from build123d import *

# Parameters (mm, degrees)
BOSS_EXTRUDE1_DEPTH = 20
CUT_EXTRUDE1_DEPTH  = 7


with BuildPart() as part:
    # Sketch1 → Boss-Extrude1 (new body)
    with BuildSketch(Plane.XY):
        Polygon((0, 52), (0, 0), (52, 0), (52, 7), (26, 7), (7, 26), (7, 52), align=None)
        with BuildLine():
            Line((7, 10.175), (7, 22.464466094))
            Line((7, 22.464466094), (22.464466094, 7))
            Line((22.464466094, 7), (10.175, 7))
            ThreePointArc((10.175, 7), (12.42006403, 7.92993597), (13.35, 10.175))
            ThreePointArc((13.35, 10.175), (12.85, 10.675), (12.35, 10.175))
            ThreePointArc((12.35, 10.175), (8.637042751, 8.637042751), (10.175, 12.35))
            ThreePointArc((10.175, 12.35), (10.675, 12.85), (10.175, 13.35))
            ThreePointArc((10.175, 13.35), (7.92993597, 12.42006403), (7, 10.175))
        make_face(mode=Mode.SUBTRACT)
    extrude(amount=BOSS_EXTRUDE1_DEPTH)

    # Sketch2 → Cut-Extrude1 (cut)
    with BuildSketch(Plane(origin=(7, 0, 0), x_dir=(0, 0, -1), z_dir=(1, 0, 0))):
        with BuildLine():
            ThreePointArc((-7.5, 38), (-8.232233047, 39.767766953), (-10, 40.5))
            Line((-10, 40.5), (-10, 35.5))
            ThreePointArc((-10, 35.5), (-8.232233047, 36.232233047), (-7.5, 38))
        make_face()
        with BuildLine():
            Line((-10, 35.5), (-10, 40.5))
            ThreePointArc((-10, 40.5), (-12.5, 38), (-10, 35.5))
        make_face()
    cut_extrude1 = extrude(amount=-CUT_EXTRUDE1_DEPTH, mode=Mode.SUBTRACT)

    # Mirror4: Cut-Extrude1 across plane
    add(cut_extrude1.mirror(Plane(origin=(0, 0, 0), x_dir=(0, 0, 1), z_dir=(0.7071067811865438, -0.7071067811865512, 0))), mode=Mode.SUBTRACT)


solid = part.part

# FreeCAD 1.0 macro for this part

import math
import FreeCAD as App
import Part
import Sketcher
from FreeCAD import Vector


def add_polygon(sketch, points):
    """Adds a closed chain of lines whose ends are joined by coincident constraints."""
    first, n = sketch.GeometryCount, len(points)
    for a, b in zip(points, points[1:] + points[:1]):
        sketch.addGeometry(Part.LineSegment(App.Vector(*a, 0), App.Vector(*b, 0)), False)
    for i in range(n):
        sketch.addConstraint(Sketcher.Constraint("Coincident", first + i, 2, first + (i + 1) % n, 1))

doc = App.newDocument("Part")
body = doc.addObject("PartDesign::Body", "Body")

# Sketch on XY plane
sketch1 = body.newObject("Sketcher::SketchObject", "Sketch")
sketch1.AttachmentSupport = (doc.getObject("XY_Plane"), [""])
sketch1.MapMode = "FlatFace"
add_polygon(sketch1, [(0, 52), (0, 0), (52, 0), (52, 7), (26, 7), (7, 26), (7, 52)])  # lines 0-6
sketch1.addGeometry(Part.ArcOfCircle(Part.Circle(Vector(10.175, 10.175, 0), Vector(0, 0, 1), 3.175), math.radians(90), math.radians(180)), False)  # 7
sketch1.addGeometry(Part.LineSegment(Vector(7, 10.175, 0), Vector(7, 22.464466, 0)), False)  # 8
sketch1.addGeometry(Part.LineSegment(Vector(7, 22.464466, 0), Vector(22.464466, 7, 0)), False)  # 9
sketch1.addGeometry(Part.LineSegment(Vector(22.464466, 7, 0), Vector(10.175, 7, 0)), False)  # 10
sketch1.addGeometry(Part.ArcOfCircle(Part.Circle(Vector(10.175, 10.175, 0), Vector(0, 0, 1), 3.175), math.radians(-90), math.radians(0)), False)  # 11
sketch1.addGeometry(Part.ArcOfCircle(Part.Circle(Vector(12.85, 10.175, 0), Vector(0, 0, 1), 0.5), math.radians(0), math.radians(180)), False)  # 12
sketch1.addGeometry(Part.ArcOfCircle(Part.Circle(Vector(10.175, 10.175, 0), Vector(0, 0, 1), 2.175), math.radians(90), math.radians(360)), False)  # 13
sketch1.addGeometry(Part.ArcOfCircle(Part.Circle(Vector(10.175, 12.85, 0), Vector(0, 0, 1), 0.5), math.radians(-90), math.radians(90)), False)  # 14
sketch1.addConstraint(Sketcher.Constraint("Tangent", 7, 2, 8, 1))
sketch1.addConstraint(Sketcher.Constraint("Coincident", 8, 2, 9, 1))
sketch1.addConstraint(Sketcher.Constraint("Coincident", 9, 2, 10, 1))
sketch1.addConstraint(Sketcher.Constraint("Tangent", 10, 2, 11, 1))
sketch1.addConstraint(Sketcher.Constraint("Tangent", 11, 2, 12, 1))
sketch1.addConstraint(Sketcher.Constraint("Tangent", 12, 2, 13, 2))
sketch1.addConstraint(Sketcher.Constraint("Tangent", 13, 1, 14, 1))
sketch1.addConstraint(Sketcher.Constraint("Tangent", 14, 2, 7, 1))
sketch1.addConstraint(Sketcher.Constraint("Vertical", 0))
sketch1.addConstraint(Sketcher.Constraint("Horizontal", 1))
sketch1.addConstraint(Sketcher.Constraint("Vertical", 2))
sketch1.addConstraint(Sketcher.Constraint("Horizontal", 3))
sketch1.addConstraint(Sketcher.Constraint("Vertical", 5))
sketch1.addConstraint(Sketcher.Constraint("Horizontal", 6))
sketch1.addConstraint(Sketcher.Constraint("Vertical", 8))
sketch1.addConstraint(Sketcher.Constraint("Horizontal", 10))
sketch1.addConstraint(Sketcher.Constraint("Coincident", 0, 2, -1, 1))
sketch1.addConstraint(Sketcher.Constraint("Coincident", 11, 3, 7, 3))
sketch1.addConstraint(Sketcher.Constraint("Coincident", 13, 3, 7, 3))
sketch1.addConstraint(Sketcher.Constraint("Equal", 7, 11))
sketch1.addConstraint(Sketcher.Constraint("Parallel", 4, 9))
sketch1.addConstraint(Sketcher.Constraint("Horizontal", 11, 3, 12, 3))
sketch1.addConstraint(Sketcher.Constraint("Horizontal", 3, 2, 9, 2))
sketch1.addConstraint(Sketcher.Constraint("Vertical", 13, 3, 14, 3))
sketch1.addConstraint(Sketcher.Constraint("Vertical", 5, 2, 7, 2))
sketch1.addConstraint(Sketcher.Constraint("Equal", 1, 0))
sketch1.addConstraint(Sketcher.Constraint("Equal", 6, 2))
sketch1.addConstraint(Sketcher.Constraint("Equal", 3, 5))
sketch1.addConstraint(Sketcher.Constraint("Radius", 12, 0.5))
sketch1.addConstraint(Sketcher.Constraint("DistanceX", 1, 1, 1, 2, 52.0))
sketch1.addConstraint(Sketcher.Constraint("DistanceX", 3, 2, 3, 1, 26.0))
sketch1.addConstraint(Sketcher.Constraint("DistanceX", 6, 2, 6, 1, 7.0))
sketch1.addConstraint(Sketcher.Constraint("Radius", 7, 3.175))
sketch1.addConstraint(Sketcher.Constraint("DistanceX", 10, 2, 10, 1, 12.289466))
pad1 = body.newObject("PartDesign::Pad", "Pad")
pad1.Profile = sketch1
pad1.Length = 20

# Sketch on YZ plane
sketch2 = body.newObject("Sketcher::SketchObject", "Sketch001")
sketch2.AttachmentSupport = (doc.getObject("YZ_Plane"), [""])
sketch2.MapMode = "FlatFace"
sketch2.AttachmentOffset = App.Placement(Vector(0, 0, 7), App.Rotation())
sketch2.addGeometry(Part.ArcOfCircle(Part.Circle(Vector(38, 10, 0), Vector(0, 0, 1), 2.5), math.radians(-90), math.radians(0)), False)
sketch2.addGeometry(Part.ArcOfCircle(Part.Circle(Vector(38, 10, 0), Vector(0, 0, 1), 2.5), math.radians(0), math.radians(180)), False)
sketch2.addGeometry(Part.ArcOfCircle(Part.Circle(Vector(38, 10, 0), Vector(0, 0, 1), 2.5), math.radians(180), math.radians(270)), False)
sketch2.addConstraint(Sketcher.Constraint("Tangent", 0, 2, 1, 1))
sketch2.addConstraint(Sketcher.Constraint("Tangent", 1, 2, 2, 1))
sketch2.addConstraint(Sketcher.Constraint("Tangent", 2, 2, 0, 1))
sketch2.addConstraint(Sketcher.Constraint("Horizontal", 2, 3, 0, 2))
sketch2.addConstraint(Sketcher.Constraint("Horizontal", 0, 2, 1, 2))
sketch2.addConstraint(Sketcher.Constraint("Vertical", 1, 3, 2, 2))
sketch2.addConstraint(Sketcher.Constraint("Radius", 0, 2.5))
sketch2.addConstraint(Sketcher.Constraint("DistanceX", -1, 1, 0, 3, 38.0))
sketch2.addConstraint(Sketcher.Constraint("DistanceY", -1, 1, 0, 3, 10.0))
pocket1 = body.newObject("PartDesign::Pocket", "Pocket")
pocket1.Profile = sketch2
pocket1.Length = 7
doc.recompute()

datumplane = body.newObject("PartDesign::Plane", "DatumPlane")
datumplane.Placement = App.Placement(Vector(0, 0, 0), App.Rotation(Vector(-0.707106781, -0.707106781, 0), Vector(0, 0, -1), Vector(0.707106781, -0.707106781, 0), "ZXY"))
mirrored = body.newObject("PartDesign::Mirrored", "Mirrored")
mirrored.Originals = [pocket1]
mirrored.MirrorPlane = (datumplane, [""])
body.Tip = mirrored

doc.recompute()
